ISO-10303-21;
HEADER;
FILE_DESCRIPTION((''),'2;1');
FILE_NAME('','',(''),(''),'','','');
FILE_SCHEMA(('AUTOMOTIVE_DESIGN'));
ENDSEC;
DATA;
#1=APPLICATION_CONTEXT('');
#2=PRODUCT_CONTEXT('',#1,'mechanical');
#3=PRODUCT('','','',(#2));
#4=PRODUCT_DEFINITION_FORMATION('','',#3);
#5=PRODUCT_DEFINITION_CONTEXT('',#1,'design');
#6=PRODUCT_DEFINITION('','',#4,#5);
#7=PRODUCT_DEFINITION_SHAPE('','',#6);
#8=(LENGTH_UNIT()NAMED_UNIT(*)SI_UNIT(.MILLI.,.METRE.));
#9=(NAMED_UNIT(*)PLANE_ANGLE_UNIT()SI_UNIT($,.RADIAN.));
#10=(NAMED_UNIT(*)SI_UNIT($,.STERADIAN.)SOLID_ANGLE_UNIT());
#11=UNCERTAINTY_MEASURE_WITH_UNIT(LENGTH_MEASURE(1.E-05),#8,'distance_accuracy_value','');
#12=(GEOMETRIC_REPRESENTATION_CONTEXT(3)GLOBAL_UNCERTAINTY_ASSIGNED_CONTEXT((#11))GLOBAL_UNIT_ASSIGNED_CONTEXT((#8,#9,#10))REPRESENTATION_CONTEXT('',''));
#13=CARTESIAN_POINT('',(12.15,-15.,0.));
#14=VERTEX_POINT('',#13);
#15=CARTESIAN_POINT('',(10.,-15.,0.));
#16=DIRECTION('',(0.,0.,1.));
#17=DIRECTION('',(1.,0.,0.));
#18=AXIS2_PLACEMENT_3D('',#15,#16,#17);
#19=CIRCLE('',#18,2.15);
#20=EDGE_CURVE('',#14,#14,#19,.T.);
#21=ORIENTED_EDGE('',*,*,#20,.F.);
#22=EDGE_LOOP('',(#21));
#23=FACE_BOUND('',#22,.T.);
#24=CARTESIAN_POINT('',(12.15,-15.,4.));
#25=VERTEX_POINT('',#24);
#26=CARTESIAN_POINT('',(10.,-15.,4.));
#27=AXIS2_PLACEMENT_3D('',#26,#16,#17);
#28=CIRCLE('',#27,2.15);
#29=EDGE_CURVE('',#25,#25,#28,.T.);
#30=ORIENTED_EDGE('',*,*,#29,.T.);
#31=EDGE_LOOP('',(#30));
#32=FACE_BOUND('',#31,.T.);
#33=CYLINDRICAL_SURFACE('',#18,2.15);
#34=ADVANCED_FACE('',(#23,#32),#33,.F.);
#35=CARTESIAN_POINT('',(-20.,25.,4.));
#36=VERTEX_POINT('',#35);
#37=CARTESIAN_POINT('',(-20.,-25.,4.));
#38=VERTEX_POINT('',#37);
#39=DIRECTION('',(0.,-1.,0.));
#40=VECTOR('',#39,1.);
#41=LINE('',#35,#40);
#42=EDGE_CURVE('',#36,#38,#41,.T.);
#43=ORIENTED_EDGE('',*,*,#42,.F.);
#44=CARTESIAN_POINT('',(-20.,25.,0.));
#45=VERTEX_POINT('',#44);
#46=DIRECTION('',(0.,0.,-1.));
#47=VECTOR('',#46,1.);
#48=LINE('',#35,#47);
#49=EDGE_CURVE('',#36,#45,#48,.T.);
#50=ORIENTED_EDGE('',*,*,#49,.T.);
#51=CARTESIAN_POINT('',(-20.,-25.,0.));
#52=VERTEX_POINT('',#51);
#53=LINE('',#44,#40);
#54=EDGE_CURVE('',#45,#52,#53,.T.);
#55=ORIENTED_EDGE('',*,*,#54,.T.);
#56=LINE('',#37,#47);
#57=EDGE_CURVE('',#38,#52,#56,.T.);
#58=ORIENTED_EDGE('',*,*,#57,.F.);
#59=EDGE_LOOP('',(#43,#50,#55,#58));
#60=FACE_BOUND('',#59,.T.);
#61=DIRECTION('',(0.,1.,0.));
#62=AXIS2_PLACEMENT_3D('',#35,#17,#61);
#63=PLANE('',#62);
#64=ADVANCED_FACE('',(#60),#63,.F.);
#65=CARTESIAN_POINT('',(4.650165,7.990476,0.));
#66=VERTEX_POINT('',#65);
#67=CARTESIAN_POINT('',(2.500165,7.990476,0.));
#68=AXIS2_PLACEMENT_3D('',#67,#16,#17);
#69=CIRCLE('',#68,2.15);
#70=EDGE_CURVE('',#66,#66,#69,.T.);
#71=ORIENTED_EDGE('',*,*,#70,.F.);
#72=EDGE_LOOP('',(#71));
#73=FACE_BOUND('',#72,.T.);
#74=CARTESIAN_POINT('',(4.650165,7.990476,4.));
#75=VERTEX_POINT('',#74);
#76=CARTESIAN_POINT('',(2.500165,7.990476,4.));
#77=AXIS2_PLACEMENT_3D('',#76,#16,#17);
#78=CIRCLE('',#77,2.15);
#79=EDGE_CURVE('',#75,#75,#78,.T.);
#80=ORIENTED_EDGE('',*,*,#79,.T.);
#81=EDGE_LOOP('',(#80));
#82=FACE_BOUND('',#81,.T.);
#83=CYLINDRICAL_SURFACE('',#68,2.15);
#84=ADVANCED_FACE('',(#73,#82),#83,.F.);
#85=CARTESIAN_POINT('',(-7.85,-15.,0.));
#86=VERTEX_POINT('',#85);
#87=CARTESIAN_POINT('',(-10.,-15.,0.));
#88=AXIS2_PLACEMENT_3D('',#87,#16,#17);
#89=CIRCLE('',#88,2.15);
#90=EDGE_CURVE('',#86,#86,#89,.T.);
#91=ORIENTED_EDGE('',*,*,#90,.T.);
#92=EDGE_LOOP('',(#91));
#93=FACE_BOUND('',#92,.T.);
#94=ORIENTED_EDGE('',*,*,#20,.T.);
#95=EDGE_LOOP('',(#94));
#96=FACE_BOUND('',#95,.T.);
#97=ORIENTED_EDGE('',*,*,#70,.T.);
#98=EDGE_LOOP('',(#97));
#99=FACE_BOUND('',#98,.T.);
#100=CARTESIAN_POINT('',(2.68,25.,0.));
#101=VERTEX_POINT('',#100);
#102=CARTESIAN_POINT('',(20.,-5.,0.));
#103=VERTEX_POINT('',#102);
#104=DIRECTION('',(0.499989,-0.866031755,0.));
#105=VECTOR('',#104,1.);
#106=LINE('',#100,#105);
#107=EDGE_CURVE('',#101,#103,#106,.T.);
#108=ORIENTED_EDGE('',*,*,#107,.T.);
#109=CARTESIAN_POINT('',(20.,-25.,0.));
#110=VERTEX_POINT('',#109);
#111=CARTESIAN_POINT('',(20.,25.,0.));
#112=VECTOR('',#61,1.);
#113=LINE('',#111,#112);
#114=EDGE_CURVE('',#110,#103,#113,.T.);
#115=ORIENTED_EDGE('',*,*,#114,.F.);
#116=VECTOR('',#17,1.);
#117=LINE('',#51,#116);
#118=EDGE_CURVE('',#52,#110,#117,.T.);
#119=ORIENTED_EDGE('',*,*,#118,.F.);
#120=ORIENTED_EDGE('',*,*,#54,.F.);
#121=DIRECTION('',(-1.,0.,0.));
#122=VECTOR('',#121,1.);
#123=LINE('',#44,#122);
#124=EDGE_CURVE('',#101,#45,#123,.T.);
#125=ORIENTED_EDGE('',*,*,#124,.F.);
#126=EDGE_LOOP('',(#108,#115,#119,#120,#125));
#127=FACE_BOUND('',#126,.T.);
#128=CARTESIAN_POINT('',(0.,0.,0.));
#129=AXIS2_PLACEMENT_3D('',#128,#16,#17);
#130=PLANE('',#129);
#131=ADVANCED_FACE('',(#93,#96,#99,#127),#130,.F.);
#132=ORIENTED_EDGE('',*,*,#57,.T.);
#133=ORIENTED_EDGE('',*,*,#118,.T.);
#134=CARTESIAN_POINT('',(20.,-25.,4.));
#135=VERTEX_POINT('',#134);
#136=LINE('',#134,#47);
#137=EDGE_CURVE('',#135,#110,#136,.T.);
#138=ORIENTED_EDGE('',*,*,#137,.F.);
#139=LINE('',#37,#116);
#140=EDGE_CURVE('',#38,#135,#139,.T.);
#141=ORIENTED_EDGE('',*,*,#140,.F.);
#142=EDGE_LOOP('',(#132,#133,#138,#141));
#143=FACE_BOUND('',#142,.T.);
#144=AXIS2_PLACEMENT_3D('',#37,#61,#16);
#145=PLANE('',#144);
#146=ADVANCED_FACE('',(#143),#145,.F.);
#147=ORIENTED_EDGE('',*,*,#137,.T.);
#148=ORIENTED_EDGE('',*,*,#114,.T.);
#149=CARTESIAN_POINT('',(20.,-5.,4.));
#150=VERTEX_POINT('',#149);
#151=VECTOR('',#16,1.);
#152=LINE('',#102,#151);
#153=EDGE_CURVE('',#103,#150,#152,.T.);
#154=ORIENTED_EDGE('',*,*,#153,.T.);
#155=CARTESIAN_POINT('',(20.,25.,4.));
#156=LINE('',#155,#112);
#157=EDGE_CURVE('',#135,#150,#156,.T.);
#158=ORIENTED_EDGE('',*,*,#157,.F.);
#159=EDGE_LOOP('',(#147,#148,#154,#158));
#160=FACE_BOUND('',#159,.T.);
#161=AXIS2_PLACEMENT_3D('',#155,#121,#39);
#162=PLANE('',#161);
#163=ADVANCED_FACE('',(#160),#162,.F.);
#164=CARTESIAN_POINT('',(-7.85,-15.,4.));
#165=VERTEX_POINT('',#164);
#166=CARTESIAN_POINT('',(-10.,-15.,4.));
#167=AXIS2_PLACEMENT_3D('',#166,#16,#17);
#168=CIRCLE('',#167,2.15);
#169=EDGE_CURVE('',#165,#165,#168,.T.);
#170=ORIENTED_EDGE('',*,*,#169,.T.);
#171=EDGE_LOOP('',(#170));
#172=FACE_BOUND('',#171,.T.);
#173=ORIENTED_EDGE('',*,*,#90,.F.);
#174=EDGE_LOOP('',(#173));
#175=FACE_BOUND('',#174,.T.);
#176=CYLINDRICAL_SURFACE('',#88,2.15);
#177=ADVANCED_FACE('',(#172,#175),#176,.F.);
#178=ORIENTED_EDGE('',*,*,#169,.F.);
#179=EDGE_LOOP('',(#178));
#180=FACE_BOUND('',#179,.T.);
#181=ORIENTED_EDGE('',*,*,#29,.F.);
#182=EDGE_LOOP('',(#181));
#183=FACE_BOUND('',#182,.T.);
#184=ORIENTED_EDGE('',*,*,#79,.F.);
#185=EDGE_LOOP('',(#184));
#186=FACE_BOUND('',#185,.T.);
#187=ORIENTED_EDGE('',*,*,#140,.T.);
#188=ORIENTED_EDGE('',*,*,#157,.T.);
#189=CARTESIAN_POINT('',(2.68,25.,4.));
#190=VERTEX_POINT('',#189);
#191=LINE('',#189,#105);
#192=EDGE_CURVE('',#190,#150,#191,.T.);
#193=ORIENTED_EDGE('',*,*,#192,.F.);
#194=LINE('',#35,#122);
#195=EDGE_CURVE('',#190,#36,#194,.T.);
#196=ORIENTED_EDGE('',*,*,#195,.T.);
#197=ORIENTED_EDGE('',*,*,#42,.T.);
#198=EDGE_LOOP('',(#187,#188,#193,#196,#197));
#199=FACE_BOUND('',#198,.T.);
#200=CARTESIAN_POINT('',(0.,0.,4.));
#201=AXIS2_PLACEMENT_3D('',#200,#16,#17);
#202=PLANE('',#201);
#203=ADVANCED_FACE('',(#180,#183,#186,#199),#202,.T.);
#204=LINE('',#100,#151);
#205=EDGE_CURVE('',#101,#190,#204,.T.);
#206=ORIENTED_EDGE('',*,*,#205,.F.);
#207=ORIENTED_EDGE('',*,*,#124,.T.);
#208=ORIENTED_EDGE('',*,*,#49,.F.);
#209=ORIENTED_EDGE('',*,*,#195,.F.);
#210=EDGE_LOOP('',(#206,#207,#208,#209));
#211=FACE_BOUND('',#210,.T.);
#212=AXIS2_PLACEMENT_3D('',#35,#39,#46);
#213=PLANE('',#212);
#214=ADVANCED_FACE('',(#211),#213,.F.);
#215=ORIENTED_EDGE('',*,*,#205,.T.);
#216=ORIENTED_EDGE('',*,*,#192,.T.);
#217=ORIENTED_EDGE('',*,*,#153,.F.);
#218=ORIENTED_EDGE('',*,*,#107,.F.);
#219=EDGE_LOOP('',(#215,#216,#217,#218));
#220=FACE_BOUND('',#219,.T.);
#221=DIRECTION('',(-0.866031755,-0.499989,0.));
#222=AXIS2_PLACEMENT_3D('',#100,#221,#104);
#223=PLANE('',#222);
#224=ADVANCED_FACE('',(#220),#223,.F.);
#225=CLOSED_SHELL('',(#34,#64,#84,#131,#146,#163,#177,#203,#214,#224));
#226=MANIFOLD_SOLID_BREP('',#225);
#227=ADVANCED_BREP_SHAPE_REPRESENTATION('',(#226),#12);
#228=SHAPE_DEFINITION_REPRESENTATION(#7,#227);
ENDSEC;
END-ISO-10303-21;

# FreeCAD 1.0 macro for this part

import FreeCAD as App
import Part
import Sketcher

V = App.Vector


def add_polygon(sketch, points):
    """Adds a closed chain of lines whose ends are joined by coincident constraints."""
    first, n = sketch.GeometryCount, len(points)
    for a, b in zip(points, points[1:] + points[:1]):
        sketch.addGeometry(Part.LineSegment(App.Vector(*a, 0), App.Vector(*b, 0)), False)
    for i in range(n):
        sketch.addConstraint(Sketcher.Constraint("Coincident", first + i, 2, first + (i + 1) % n, 1))

doc = App.newDocument("Part")
body = doc.addObject("PartDesign::Body", "Body")

sketch1 = body.newObject("Sketcher::SketchObject", "Sketch")
sketch1.AttachmentSupport = (doc.getObject("XY_Plane"), [""])
sketch1.MapMode = "FlatFace"
add_polygon(sketch1, [(-20, 25), (-20, -25), (20, -25), (20, 25)])
sketch1.addConstraint(Sketcher.Constraint("Vertical", 0))
sketch1.addConstraint(Sketcher.Constraint("Horizontal", 1))
sketch1.addConstraint(Sketcher.Constraint("Vertical", 2))
sketch1.addConstraint(Sketcher.Constraint("Horizontal", 3))
sketch1.addConstraint(Sketcher.Constraint("Symmetric", 0, 2, 2, 2, -1, 1))
sketch1.addConstraint(Sketcher.Constraint("DistanceX", 1, 1, 1, 2, 40.0))
sketch1.addConstraint(Sketcher.Constraint("DistanceY", 0, 2, 0, 1, 50.0))
pad1 = body.newObject("PartDesign::Pad", "Pad")
pad1.Profile = sketch1
pad1.Length = 4

sketch2 = body.newObject("Sketcher::SketchObject", "Sketch001")
sketch2.AttachmentSupport = (doc.getObject("XY_Plane"), [""])
sketch2.MapMode = "FlatFace"
sketch2.AttachmentOffset = App.Placement(V(0, 0, 4), App.Rotation())
add_polygon(sketch2, [(2.68, 25), (20, -5), (20, 25)])
sketch2.addConstraint(Sketcher.Constraint("Vertical", 1))
sketch2.addConstraint(Sketcher.Constraint("Horizontal", 2))
sketch2.addConstraint(Sketcher.Constraint("DistanceY", 1, 1, 1, 2, 30.0))
sketch2.addConstraint(Sketcher.Constraint("DistanceX", -1, 1, 0, 2, 20.0))
sketch2.addConstraint(Sketcher.Constraint("DistanceY", 0, 2, -1, 1, 5.0))
sketch2.addConstraint(Sketcher.Constraint("DistanceX", 2, 2, 2, 1, 17.32))
pocket1 = body.newObject("PartDesign::Pocket", "Pocket")
pocket1.Profile = sketch2
pocket1.Type = "ThroughAll"

sketch3 = body.newObject("Sketcher::SketchObject", "Sketch002")
sketch3.AttachmentSupport = (doc.getObject("XY_Plane"), [""])
sketch3.MapMode = "FlatFace"
sketch3.AttachmentOffset = App.Placement(V(0, 0, 4), App.Rotation())
sketch3.addGeometry(Part.Circle(V(2.500165, 7.990476, 0), V(0, 0, 1), 2.15), False)
sketch3.addConstraint(Sketcher.Constraint("Diameter", 0, 4.3))
sketch3.addConstraint(Sketcher.Constraint("DistanceX", -1, 1, 0, 3, 2.500165))
sketch3.addConstraint(Sketcher.Constraint("DistanceY", -1, 1, 0, 3, 7.990476))
pocket2 = body.newObject("PartDesign::Pocket", "Pocket001")
pocket2.Profile = sketch3
pocket2.Type = "ThroughAll"

sketch4 = body.newObject("Sketcher::SketchObject", "Sketch003")
sketch4.AttachmentSupport = (doc.getObject("XY_Plane"), [""])
sketch4.MapMode = "FlatFace"
sketch4.AttachmentOffset = App.Placement(V(0, 0, 4), App.Rotation())
sketch4.addGeometry(Part.Circle(V(-10, -15, 0), V(0, 0, 1), 2.15), False)
sketch4.addConstraint(Sketcher.Constraint("Diameter", 0, 4.3))
sketch4.addConstraint(Sketcher.Constraint("DistanceX", 0, 3, -1, 1, 10.0))
sketch4.addConstraint(Sketcher.Constraint("DistanceY", 0, 3, -1, 1, 15.0))
pocket3 = body.newObject("PartDesign::Pocket", "Pocket002")
pocket3.Profile = sketch4
pocket3.Type = "ThroughAll"

sketch5 = body.newObject("Sketcher::SketchObject", "Sketch004")
sketch5.AttachmentSupport = (doc.getObject("XY_Plane"), [""])
sketch5.MapMode = "FlatFace"
sketch5.AttachmentOffset = App.Placement(V(0, 0, 4), App.Rotation())
sketch5.addGeometry(Part.Circle(V(10, -15, 0), V(0, 0, 1), 2.15), False)
sketch5.addConstraint(Sketcher.Constraint("Diameter", 0, 4.3))
sketch5.addConstraint(Sketcher.Constraint("DistanceX", -1, 1, 0, 3, 10.0))
sketch5.addConstraint(Sketcher.Constraint("DistanceY", 0, 3, -1, 1, 15.0))
pocket4 = body.newObject("PartDesign::Pocket", "Pocket003")
pocket4.Profile = sketch5
pocket4.Type = "ThroughAll"

doc.recompute()
